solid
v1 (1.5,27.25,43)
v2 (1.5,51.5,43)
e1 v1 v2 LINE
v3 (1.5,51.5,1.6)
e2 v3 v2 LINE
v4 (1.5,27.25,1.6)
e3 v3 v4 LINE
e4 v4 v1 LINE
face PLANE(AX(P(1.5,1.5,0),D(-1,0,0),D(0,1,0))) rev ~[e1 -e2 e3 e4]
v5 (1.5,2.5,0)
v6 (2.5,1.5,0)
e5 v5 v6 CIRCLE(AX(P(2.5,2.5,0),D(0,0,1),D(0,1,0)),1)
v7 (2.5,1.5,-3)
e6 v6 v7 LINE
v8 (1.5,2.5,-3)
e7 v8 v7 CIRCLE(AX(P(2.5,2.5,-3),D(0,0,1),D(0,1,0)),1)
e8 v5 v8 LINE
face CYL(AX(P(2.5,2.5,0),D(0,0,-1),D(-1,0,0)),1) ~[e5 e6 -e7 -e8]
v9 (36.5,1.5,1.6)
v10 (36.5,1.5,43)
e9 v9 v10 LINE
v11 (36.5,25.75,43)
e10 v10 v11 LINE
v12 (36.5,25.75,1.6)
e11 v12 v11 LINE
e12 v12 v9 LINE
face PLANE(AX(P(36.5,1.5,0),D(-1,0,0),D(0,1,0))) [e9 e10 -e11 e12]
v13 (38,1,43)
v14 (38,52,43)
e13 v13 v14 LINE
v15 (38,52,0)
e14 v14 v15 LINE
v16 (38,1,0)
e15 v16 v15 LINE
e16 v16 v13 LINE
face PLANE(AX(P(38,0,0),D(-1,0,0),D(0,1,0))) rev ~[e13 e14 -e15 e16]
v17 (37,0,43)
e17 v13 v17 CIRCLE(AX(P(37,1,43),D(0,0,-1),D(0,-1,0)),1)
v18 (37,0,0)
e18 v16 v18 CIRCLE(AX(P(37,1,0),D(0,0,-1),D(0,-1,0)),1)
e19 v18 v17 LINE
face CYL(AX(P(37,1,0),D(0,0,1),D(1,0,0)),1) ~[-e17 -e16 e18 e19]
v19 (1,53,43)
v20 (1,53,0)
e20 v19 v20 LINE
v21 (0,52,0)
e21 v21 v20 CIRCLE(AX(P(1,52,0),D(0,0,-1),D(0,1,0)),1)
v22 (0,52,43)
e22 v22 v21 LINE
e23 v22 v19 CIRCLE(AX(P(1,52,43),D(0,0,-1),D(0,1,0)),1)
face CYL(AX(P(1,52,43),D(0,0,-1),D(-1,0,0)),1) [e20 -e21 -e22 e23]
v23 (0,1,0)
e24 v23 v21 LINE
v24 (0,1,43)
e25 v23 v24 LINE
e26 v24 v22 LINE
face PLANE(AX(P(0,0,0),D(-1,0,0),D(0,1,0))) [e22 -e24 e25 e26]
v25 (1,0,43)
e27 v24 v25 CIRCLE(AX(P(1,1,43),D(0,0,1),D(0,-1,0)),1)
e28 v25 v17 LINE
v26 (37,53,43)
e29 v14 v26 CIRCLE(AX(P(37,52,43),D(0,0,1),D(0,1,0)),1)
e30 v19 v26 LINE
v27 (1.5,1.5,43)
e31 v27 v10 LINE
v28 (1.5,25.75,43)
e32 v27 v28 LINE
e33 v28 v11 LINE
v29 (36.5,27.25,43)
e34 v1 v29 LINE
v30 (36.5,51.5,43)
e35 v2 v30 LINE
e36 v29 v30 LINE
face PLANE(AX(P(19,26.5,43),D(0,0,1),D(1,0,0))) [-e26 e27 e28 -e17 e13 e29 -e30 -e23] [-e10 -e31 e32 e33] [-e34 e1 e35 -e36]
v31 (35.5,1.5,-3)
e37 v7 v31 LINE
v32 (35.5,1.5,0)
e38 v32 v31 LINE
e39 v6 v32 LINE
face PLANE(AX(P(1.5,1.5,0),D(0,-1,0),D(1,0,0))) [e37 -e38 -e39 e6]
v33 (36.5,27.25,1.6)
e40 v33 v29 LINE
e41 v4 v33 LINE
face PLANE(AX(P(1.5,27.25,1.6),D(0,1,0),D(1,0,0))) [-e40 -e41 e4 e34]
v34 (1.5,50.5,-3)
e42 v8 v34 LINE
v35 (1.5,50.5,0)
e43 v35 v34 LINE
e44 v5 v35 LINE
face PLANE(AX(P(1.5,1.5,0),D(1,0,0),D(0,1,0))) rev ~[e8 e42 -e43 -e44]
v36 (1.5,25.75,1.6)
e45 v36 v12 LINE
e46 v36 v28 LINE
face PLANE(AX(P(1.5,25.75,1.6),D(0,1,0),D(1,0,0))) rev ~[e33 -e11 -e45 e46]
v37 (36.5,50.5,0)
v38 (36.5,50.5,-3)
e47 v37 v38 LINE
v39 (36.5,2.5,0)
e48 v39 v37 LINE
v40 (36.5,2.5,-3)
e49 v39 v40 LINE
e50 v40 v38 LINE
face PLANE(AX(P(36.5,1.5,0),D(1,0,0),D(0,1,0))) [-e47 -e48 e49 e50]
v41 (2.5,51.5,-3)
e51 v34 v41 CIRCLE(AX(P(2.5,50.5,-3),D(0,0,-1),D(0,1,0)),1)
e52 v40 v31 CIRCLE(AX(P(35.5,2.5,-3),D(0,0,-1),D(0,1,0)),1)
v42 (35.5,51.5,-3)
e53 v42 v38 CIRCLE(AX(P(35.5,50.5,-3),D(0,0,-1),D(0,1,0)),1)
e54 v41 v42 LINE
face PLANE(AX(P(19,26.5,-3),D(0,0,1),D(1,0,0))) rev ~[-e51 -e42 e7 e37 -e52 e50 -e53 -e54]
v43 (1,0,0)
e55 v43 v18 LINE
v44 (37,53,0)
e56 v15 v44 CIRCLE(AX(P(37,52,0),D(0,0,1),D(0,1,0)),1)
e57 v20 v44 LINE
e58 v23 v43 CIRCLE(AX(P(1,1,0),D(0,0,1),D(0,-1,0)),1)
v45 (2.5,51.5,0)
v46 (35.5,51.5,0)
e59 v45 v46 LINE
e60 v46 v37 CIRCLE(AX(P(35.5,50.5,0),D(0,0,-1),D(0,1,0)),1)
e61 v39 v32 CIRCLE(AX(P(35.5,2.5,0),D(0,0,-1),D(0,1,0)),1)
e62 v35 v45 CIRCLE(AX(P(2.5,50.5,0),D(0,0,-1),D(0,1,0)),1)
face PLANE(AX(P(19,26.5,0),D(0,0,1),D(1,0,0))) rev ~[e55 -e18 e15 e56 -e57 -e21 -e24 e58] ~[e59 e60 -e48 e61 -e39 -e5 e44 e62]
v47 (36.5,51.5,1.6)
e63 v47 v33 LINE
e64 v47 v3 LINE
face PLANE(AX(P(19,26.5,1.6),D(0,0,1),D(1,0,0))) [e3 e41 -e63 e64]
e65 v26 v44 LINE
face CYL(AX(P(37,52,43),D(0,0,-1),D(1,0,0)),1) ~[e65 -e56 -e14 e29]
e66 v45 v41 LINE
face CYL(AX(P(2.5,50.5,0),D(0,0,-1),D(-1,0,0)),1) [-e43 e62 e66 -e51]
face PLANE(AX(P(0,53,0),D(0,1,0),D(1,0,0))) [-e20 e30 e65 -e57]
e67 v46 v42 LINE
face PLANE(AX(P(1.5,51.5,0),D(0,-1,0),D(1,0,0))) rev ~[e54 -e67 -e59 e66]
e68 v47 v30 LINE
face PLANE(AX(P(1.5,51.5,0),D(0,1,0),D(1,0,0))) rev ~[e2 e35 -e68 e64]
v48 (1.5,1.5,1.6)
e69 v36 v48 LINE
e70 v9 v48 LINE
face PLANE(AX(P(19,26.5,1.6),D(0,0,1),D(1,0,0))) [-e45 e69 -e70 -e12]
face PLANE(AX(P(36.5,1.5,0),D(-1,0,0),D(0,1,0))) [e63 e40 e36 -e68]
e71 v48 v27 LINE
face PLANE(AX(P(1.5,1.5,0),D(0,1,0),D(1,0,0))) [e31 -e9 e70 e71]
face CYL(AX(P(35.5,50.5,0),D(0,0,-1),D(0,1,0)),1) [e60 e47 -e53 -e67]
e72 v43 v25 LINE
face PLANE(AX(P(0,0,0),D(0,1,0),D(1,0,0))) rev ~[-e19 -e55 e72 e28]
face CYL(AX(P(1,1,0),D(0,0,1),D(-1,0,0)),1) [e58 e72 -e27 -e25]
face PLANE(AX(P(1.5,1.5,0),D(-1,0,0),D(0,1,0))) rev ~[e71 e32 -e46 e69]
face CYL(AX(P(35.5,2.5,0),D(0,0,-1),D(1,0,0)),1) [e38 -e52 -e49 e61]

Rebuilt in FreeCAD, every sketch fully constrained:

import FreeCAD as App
import Part
import Sketcher
from FreeCAD import Vector
Q = App.Units.Quantity


def edges_at(feature, points):
    """Names of the edges that pass closest to the given points."""
    edges = feature.Shape.Edges
    near = lambda p: min(range(len(edges)), key=lambda i: edges[i].distToShape(Part.Vertex(*p))[0])
    return sorted({f"Edge{near(p) + 1}" for p in points})


def add_polygon(sketch, points):
    """Adds a closed chain of lines whose ends are joined by coincident constraints."""
    first, n = sketch.GeometryCount, len(points)
    for a, b in zip(points, points[1:] + points[:1]):
        sketch.addGeometry(Part.LineSegment(App.Vector(*a, 0), App.Vector(*b, 0)), False)
    for i in range(n):
        sketch.addConstraint(Sketcher.Constraint("Coincident", first + i, 2, first + (i + 1) % n, 1))

doc = App.newDocument("Part")
params = doc.addObject("Spreadsheet::Sheet", "Params")
for row, (alias, value) in enumerate([
    ("sketch1_width", "35 mm"),
    ("sketch1_height", "50 mm"),
    ("pad1_length", "3 mm"),
    ("sketch2_width", "38 mm"),
    ("sketch2_height", "53 mm"),
    ("pad2_length", "1.6 mm"),
    ("sketch3_width", "38 mm"),
    ("sketch3_width2", "35 mm"),
    ("sketch3_height", "53 mm"),
    ("sketch3_height2", "50 mm"),
    ("pad3_length", "43 mm"),
    ("fillet_radius", "1 mm"),
    ("sketch4_width", "35 mm"),
    ("sketch4_height", "1.5 mm"),
    ("pad4_length", "41.4 mm"),
], start=1):
    params.set(f"A{row}", alias)
    params.set(f"B{row}", "=" + value)
    params.setAlias(f"B{row}", alias)

body = doc.addObject("PartDesign::Body", "Body")

# Sketch on XY plane
sketch1 = doc.addObject("Sketcher::SketchObject", "Sketch")
body.addObject(sketch1)
sketch1.AttachmentSupport = (doc.XY_Plane, [""])
sketch1.MapMode = "FlatFace"
add_polygon(sketch1, [(1.5, 51.5), (1.5, 1.5), (36.5, 1.5), (36.5, 51.5)])  # lines 0-3
sketch1.addConstraint([
    Sketcher.Constraint("Vertical", 0),
    Sketcher.Constraint("Horizontal", 1),
    Sketcher.Constraint("Vertical", 2),
    Sketcher.Constraint("Horizontal", 3),
    Sketcher.Constraint("DistanceX", 1, 1, 1, 2, Q("35 mm")),
    Sketcher.Constraint("DistanceY", 0, 2, 0, 1, Q("50 mm")),
    Sketcher.Constraint("DistanceX", -1, 1, 0, 2, Q("1.5 mm")),
    Sketcher.Constraint("DistanceY", -1, 1, 0, 2, Q("1.5 mm")),
])
sketch1.setExpression("Constraints[8]", "Params.sketch1_width")
sketch1.setExpression("Constraints[9]", "Params.sketch1_height")
pad1 = doc.addObject("PartDesign::Pad", "Pad")
body.addObject(pad1)
pad1.Profile = sketch1
pad1.setExpression("Length", "Params.pad1_length")
pad1.Reversed = True

# Sketch on XY plane
sketch2 = doc.addObject("Sketcher::SketchObject", "Sketch001")
body.addObject(sketch2)
sketch2.AttachmentSupport = (doc.XY_Plane, [""])
sketch2.MapMode = "FlatFace"
add_polygon(sketch2, [(0, 53), (0, 0), (38, 0), (38, 53)])  # lines 0-3
sketch2.addConstraint([
    Sketcher.Constraint("Vertical", 0),
    Sketcher.Constraint("Horizontal", 1),
    Sketcher.Constraint("Vertical", 2),
    Sketcher.Constraint("Horizontal", 3),
    Sketcher.Constraint("Coincident", 0, 2, -1, 1),
    Sketcher.Constraint("DistanceX", 1, 1, 1, 2, Q("38 mm")),
    Sketcher.Constraint("DistanceY", 0, 2, 0, 1, Q("53 mm")),
])
sketch2.setExpression("Constraints[9]", "Params.sketch2_width")
sketch2.setExpression("Constraints[10]", "Params.sketch2_height")
pad2 = doc.addObject("PartDesign::Pad", "Pad001")
body.addObject(pad2)
pad2.Profile = sketch2
pad2.setExpression("Length", "Params.pad2_length")

# Sketch on XY plane
sketch3 = doc.addObject("Sketcher::SketchObject", "Sketch002")
body.addObject(sketch3)
sketch3.AttachmentSupport = (doc.XY_Plane, [""])
sketch3.MapMode = "FlatFace"
add_polygon(sketch3, [(0, 53), (0, 0), (38, 0), (38, 53)])  # lines 0-3
add_polygon(sketch3, [(36.5, 1.5), (1.5, 1.5), (1.5, 51.5), (36.5, 51.5)])  # lines 4-7
sketch3.addConstraint([
    Sketcher.Constraint("Vertical", 0),
    Sketcher.Constraint("Horizontal", 1),
    Sketcher.Constraint("Vertical", 2),
    Sketcher.Constraint("Horizontal", 3),
    Sketcher.Constraint("Horizontal", 4),
    Sketcher.Constraint("Vertical", 5),
    Sketcher.Constraint("Horizontal", 6),
    Sketcher.Constraint("Vertical", 7),
    Sketcher.Constraint("Coincident", 0, 2, -1, 1),
    Sketcher.Constraint("DistanceX", 1, 1, 1, 2, Q("38 mm")),
    Sketcher.Constraint("DistanceX", 4, 2, 4, 1, Q("35 mm")),
    Sketcher.Constraint("DistanceY", 0, 2, 0, 1, Q("53 mm")),
    Sketcher.Constraint("DistanceY", 5, 1, 5, 2, Q("50 mm")),
    Sketcher.Constraint("DistanceX", -1, 1, 4, 2, Q("1.5 mm")),
    Sketcher.Constraint("DistanceY", -1, 1, 4, 2, Q("1.5 mm")),
])
sketch3.setExpression("Constraints[17]", "Params.sketch3_width")
sketch3.setExpression("Constraints[18]", "Params.sketch3_width2")
sketch3.setExpression("Constraints[19]", "Params.sketch3_height")
sketch3.setExpression("Constraints[20]", "Params.sketch3_height2")
pad3 = doc.addObject("PartDesign::Pad", "Pad002")
body.addObject(pad3)
pad3.Profile = sketch3
pad3.setExpression("Length", "Params.pad3_length")
doc.recompute()

fillet = doc.addObject("PartDesign::Fillet", "Fillet")
body.addObject(fillet)
fillet.Base = (pad3, edges_at(pad3, [
    (36.5, 1.5, -1.5),
    (1.5, 1.5, -1.5),
    (1.5, 51.5, -1.5),
    (36.5, 51.5, -1.5),
    (0, 53, 21.5),
    (38, 53, 21.5),
    (0, 0, 21.5),
    (38, 0, 21.5),
]))
fillet.setExpression("Radius", "Params.fillet_radius")

# Sketch on XY plane
sketch4 = doc.addObject("Sketcher::SketchObject", "Sketch003")
body.addObject(sketch4)
sketch4.AttachmentSupport = (doc.XY_Plane, [""])
sketch4.MapMode = "FlatFace"
sketch4.AttachmentOffset = App.Placement(Vector(0, 0, 1.6), App.Rotation())
add_polygon(sketch4, [(1.5, 27.25), (1.5, 25.75), (36.5, 25.75), (36.5, 27.25)])  # lines 0-3
sketch4.addConstraint([
    Sketcher.Constraint("Vertical", 0),
    Sketcher.Constraint("Horizontal", 1),
    Sketcher.Constraint("Vertical", 2),
    Sketcher.Constraint("Horizontal", 3),
    Sketcher.Constraint("DistanceX", 1, 1, 1, 2, Q("35 mm")),
    Sketcher.Constraint("DistanceY", 0, 2, 0, 1, Q("1.5 mm")),
    Sketcher.Constraint("DistanceX", -1, 1, 0, 2, Q("1.5 mm")),
    Sketcher.Constraint("DistanceY", -1, 1, 0, 2, Q("25.75 mm")),
])
sketch4.setExpression("Constraints[8]", "Params.sketch4_width")
sketch4.setExpression("Constraints[9]", "Params.sketch4_height")
pad4 = doc.addObject("PartDesign::Pad", "Pad003")
body.addObject(pad4)
pad4.Profile = sketch4
pad4.setExpression("Length", "Params.pad4_length")

doc.recompute()
